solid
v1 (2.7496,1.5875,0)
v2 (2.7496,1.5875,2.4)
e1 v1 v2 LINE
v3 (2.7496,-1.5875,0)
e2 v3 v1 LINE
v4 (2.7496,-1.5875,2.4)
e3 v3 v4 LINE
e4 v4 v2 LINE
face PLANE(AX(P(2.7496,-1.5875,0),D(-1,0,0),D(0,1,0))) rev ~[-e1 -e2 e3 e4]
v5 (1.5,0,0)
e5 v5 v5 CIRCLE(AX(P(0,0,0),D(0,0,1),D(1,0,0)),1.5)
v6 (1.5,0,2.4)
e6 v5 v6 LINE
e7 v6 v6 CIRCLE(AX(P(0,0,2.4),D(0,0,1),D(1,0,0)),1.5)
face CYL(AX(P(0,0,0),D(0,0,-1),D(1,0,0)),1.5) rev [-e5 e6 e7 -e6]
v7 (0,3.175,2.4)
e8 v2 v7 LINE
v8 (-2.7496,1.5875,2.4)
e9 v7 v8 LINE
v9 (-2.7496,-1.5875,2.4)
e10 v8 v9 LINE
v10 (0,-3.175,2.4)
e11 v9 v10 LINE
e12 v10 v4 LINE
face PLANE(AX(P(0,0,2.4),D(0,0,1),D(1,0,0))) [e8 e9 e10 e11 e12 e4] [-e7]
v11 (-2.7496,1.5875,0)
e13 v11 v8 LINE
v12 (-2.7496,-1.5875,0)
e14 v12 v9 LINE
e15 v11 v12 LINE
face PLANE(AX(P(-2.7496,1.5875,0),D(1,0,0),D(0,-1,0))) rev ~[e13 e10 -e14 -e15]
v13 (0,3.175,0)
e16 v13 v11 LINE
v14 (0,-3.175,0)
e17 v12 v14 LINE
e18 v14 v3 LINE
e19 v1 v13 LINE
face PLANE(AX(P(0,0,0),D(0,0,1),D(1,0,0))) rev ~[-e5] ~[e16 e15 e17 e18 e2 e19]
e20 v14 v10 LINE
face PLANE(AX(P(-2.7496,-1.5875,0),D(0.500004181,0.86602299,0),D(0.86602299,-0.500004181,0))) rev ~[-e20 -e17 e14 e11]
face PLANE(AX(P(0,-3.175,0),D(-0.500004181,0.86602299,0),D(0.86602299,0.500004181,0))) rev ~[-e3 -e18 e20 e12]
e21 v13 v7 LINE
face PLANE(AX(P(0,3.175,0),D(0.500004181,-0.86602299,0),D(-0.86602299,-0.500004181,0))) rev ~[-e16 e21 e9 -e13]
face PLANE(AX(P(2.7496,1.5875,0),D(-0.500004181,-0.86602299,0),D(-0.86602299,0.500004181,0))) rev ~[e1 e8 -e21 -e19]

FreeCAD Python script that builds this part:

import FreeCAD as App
import Part
import Sketcher

V = App.Vector
Q = App.Units.Quantity

doc = App.newDocument("Part")
body = doc.addObject("PartDesign::Body", "Body")

# Sketch on XY plane
sketch1 = doc.addObject("Sketcher::SketchObject", "Sketch")
body.addObject(sketch1)
sketch1.AttachmentSupport = (doc.XY_Plane, [""])
sketch1.MapMode = "FlatFace"
sketch1.addGeometry([
    Part.LineSegment(V(2.7496, 1.5875, 0), V(0, 3.175, 0)),  # 0
    Part.LineSegment(V(0, 3.175, 0), V(-2.7496, 1.5875, 0)),  # 1
    Part.LineSegment(V(-2.7496, 1.5875, 0), V(-2.7496, -1.5875, 0)),  # 2
    Part.LineSegment(V(-2.7496, -1.5875, 0), V(0, -3.175, 0)),  # 3
    Part.LineSegment(V(0, -3.175, 0), V(2.7496, -1.5875, 0)),  # 4
    Part.LineSegment(V(2.7496, -1.5875, 0), V(2.7496, 1.5875, 0)),  # 5
    Part.Circle(V(0, 0, 0), V(0, 0, 1), 1.5),  # 6
], False)
sketch1.addConstraint([
    Sketcher.Constraint("Coincident", 0, 2, 1, 1),
    Sketcher.Constraint("Coincident", 1, 2, 2, 1),
    Sketcher.Constraint("Coincident", 2, 2, 3, 1),
    Sketcher.Constraint("Coincident", 3, 2, 4, 1),
    Sketcher.Constraint("Coincident", 4, 2, 5, 1),
    Sketcher.Constraint("Coincident", 5, 2, 0, 1),
    Sketcher.Constraint("Vertical", 2),
    Sketcher.Constraint("Vertical", 5),
    Sketcher.Constraint("Coincident", 6, 3, -1, 1),
    Sketcher.Constraint("Symmetric", 0, 2, 3, 2, -1, 1),
    Sketcher.Constraint("Symmetric", 1, 2, 4, 2, -1, 1),
    Sketcher.Constraint("PointOnObject", 0, 2, -2),
    Sketcher.Constraint("Parallel", 0, 3),
    Sketcher.Constraint("Horizontal", 2, 2, 4, 2),
    Sketcher.Constraint("Diameter", 6, Q("0.1181 in")),
    Sketcher.Constraint("DistanceY", 2, 2, 2, 1, Q("0.125 in")),
    Sketcher.Constraint("Distance", 0, Q("0.125 in")),
    Sketcher.Constraint("DistanceY", -1, 1, 0, 2, Q("0.125 in")),
])
pad1 = doc.addObject("PartDesign::Pad", "Pad")
body.addObject(pad1)
pad1.Profile = sketch1
pad1.Length = Q("0.0944882 in")

doc.recompute()
